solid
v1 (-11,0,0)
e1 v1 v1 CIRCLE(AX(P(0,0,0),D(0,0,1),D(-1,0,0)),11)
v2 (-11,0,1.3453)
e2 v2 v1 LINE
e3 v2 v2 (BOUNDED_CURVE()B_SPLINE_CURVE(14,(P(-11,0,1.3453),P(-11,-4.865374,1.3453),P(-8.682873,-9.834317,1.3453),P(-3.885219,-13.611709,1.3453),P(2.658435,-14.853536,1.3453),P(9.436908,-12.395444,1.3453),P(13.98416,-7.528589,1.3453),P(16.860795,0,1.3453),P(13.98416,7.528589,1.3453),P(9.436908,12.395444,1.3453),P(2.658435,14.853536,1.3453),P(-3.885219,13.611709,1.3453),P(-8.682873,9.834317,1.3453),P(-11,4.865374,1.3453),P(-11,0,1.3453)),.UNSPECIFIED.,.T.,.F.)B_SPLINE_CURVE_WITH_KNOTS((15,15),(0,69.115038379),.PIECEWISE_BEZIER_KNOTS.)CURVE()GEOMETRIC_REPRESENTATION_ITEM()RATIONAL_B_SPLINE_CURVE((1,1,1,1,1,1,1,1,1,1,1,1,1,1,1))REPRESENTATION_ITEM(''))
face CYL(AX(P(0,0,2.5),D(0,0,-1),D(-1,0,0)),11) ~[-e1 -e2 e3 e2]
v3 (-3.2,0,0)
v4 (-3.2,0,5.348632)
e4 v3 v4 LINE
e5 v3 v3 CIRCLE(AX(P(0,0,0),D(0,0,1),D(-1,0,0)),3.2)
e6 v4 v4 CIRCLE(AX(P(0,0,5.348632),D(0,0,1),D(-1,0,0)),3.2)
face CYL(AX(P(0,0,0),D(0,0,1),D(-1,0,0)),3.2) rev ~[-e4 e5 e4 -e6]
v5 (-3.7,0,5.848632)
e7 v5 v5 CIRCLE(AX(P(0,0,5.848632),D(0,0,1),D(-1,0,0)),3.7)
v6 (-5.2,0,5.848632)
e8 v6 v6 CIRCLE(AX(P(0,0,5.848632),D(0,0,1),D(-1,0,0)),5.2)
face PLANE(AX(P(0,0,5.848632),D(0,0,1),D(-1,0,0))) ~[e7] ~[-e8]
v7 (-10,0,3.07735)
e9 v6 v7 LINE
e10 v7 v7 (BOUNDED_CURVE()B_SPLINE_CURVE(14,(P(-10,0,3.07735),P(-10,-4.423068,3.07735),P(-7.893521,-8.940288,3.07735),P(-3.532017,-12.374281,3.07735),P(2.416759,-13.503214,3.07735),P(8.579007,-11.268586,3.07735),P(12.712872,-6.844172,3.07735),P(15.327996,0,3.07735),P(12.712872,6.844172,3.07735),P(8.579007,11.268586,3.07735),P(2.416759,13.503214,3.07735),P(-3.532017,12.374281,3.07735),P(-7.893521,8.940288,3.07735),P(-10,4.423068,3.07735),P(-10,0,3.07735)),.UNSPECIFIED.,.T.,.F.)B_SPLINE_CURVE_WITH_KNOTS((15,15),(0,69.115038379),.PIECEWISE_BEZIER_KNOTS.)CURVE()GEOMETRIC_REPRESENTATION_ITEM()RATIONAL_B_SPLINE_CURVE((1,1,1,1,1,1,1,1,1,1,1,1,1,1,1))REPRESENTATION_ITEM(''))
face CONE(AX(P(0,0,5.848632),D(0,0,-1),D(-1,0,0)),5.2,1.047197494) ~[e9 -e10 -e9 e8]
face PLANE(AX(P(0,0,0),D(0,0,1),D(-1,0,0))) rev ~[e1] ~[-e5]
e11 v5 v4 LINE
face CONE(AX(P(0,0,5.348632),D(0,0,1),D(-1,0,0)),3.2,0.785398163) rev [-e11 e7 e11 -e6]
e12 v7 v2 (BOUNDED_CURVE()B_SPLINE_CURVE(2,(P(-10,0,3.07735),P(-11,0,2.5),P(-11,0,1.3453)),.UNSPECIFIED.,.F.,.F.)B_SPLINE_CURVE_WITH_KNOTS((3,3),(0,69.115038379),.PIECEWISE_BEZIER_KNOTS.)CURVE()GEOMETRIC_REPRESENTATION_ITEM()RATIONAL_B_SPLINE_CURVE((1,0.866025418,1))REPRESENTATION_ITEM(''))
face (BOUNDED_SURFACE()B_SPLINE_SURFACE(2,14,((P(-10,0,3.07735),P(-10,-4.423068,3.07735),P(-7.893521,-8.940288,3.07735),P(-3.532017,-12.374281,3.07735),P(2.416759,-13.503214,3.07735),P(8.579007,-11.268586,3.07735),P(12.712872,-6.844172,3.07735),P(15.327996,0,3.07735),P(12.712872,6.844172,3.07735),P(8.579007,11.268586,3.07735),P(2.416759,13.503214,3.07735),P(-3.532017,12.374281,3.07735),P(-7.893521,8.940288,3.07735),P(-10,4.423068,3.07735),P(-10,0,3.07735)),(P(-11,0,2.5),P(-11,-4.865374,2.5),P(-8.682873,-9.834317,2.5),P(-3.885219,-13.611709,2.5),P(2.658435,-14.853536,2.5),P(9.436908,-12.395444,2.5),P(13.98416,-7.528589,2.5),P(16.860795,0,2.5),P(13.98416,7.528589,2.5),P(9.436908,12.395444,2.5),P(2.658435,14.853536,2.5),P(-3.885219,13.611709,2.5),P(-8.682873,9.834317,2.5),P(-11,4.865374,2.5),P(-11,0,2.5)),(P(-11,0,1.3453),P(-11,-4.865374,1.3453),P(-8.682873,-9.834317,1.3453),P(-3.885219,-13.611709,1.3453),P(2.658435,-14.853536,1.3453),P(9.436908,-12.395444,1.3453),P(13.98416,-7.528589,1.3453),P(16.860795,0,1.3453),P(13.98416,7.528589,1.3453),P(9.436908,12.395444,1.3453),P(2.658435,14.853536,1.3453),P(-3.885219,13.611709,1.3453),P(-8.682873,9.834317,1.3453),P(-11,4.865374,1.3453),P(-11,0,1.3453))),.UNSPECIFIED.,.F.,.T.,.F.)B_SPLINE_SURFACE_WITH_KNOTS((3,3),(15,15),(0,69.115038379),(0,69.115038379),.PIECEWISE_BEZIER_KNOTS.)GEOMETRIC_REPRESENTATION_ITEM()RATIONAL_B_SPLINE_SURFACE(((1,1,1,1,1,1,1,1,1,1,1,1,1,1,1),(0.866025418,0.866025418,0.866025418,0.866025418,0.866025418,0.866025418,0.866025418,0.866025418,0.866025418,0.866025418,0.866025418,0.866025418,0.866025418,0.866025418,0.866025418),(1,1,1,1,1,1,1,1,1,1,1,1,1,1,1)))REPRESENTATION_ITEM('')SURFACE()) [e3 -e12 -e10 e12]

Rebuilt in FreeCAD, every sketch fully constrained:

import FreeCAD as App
import Part
import Sketcher
from FreeCAD import Vector
Q = App.Units.Quantity


def edges_at(feature, points):
    """Names of the edges that pass closest to the given points."""
    edges = feature.Shape.Edges
    near = lambda p: min(range(len(edges)), key=lambda i: edges[i].distToShape(Part.Vertex(*p))[0])
    return sorted({f"Edge{near(p) + 1}" for p in points})


def add_polygon(sketch, points):
    """Adds a closed chain of lines whose ends are joined by coincident constraints."""
    first, n = sketch.GeometryCount, len(points)
    for a, b in zip(points, points[1:] + points[:1]):
        sketch.addGeometry(Part.LineSegment(App.Vector(*a, 0), App.Vector(*b, 0)), False)
    for i in range(n):
        sketch.addConstraint(Sketcher.Constraint("Coincident", first + i, 2, first + (i + 1) % n, 1))

doc = App.newDocument("Part")
body = doc.addObject("PartDesign::Body", "Body")

# Sketch on XZ plane
sketch1 = body.newObject("Sketcher::SketchObject", "Sketch")
sketch1.AttachmentSupport = (doc.getObject("XZ_Plane"), [""])
sketch1.MapMode = "FlatFace"
add_polygon(sketch1, [(-11, 0), (-3.2, 0), (-3.2, 5.8), (-5.2, 5.8), (-11, 2.5)])  # lines 0-4
sketch1.addConstraint([
    Sketcher.Constraint("Horizontal", 0),
    Sketcher.Constraint("Vertical", 1),
    Sketcher.Constraint("Horizontal", 2),
    Sketcher.Constraint("Vertical", 4),
    Sketcher.Constraint("PointOnObject", 0, 2, -1),
    Sketcher.Constraint("DistanceX", 2, 2, 2, 1, Q("2 mm")),
    Sketcher.Constraint("Angle", 3, Q("-149.999997 deg")),
    Sketcher.Constraint("DistanceX", 0, 1, 0, 2, Q("7.8 mm")),
    Sketcher.Constraint("DistanceY", 4, 2, 4, 1, Q("2.5 mm")),
    Sketcher.Constraint("DistanceX", 3, 2, -1, 1, Q("11 mm")),
])
revolution = body.newObject("PartDesign::Revolution", "Revolution")
revolution.Profile = sketch1
revolution.ReferenceAxis = (sketch1, ["V_Axis"])
revolution.Angle = 360
doc.recompute()

fillet = body.newObject("PartDesign::Fillet", "Fillet")
fillet.Base = (revolution, edges_at(revolution, [(11, 0, 2.5)]))
fillet.Radius = 2
doc.recompute()

chamfer = body.newObject("PartDesign::Chamfer", "Chamfer")
chamfer.Base = (fillet, edges_at(fillet, [(3.2, 0, 5.849)]))
chamfer.Size = 0.5

doc.recompute()
